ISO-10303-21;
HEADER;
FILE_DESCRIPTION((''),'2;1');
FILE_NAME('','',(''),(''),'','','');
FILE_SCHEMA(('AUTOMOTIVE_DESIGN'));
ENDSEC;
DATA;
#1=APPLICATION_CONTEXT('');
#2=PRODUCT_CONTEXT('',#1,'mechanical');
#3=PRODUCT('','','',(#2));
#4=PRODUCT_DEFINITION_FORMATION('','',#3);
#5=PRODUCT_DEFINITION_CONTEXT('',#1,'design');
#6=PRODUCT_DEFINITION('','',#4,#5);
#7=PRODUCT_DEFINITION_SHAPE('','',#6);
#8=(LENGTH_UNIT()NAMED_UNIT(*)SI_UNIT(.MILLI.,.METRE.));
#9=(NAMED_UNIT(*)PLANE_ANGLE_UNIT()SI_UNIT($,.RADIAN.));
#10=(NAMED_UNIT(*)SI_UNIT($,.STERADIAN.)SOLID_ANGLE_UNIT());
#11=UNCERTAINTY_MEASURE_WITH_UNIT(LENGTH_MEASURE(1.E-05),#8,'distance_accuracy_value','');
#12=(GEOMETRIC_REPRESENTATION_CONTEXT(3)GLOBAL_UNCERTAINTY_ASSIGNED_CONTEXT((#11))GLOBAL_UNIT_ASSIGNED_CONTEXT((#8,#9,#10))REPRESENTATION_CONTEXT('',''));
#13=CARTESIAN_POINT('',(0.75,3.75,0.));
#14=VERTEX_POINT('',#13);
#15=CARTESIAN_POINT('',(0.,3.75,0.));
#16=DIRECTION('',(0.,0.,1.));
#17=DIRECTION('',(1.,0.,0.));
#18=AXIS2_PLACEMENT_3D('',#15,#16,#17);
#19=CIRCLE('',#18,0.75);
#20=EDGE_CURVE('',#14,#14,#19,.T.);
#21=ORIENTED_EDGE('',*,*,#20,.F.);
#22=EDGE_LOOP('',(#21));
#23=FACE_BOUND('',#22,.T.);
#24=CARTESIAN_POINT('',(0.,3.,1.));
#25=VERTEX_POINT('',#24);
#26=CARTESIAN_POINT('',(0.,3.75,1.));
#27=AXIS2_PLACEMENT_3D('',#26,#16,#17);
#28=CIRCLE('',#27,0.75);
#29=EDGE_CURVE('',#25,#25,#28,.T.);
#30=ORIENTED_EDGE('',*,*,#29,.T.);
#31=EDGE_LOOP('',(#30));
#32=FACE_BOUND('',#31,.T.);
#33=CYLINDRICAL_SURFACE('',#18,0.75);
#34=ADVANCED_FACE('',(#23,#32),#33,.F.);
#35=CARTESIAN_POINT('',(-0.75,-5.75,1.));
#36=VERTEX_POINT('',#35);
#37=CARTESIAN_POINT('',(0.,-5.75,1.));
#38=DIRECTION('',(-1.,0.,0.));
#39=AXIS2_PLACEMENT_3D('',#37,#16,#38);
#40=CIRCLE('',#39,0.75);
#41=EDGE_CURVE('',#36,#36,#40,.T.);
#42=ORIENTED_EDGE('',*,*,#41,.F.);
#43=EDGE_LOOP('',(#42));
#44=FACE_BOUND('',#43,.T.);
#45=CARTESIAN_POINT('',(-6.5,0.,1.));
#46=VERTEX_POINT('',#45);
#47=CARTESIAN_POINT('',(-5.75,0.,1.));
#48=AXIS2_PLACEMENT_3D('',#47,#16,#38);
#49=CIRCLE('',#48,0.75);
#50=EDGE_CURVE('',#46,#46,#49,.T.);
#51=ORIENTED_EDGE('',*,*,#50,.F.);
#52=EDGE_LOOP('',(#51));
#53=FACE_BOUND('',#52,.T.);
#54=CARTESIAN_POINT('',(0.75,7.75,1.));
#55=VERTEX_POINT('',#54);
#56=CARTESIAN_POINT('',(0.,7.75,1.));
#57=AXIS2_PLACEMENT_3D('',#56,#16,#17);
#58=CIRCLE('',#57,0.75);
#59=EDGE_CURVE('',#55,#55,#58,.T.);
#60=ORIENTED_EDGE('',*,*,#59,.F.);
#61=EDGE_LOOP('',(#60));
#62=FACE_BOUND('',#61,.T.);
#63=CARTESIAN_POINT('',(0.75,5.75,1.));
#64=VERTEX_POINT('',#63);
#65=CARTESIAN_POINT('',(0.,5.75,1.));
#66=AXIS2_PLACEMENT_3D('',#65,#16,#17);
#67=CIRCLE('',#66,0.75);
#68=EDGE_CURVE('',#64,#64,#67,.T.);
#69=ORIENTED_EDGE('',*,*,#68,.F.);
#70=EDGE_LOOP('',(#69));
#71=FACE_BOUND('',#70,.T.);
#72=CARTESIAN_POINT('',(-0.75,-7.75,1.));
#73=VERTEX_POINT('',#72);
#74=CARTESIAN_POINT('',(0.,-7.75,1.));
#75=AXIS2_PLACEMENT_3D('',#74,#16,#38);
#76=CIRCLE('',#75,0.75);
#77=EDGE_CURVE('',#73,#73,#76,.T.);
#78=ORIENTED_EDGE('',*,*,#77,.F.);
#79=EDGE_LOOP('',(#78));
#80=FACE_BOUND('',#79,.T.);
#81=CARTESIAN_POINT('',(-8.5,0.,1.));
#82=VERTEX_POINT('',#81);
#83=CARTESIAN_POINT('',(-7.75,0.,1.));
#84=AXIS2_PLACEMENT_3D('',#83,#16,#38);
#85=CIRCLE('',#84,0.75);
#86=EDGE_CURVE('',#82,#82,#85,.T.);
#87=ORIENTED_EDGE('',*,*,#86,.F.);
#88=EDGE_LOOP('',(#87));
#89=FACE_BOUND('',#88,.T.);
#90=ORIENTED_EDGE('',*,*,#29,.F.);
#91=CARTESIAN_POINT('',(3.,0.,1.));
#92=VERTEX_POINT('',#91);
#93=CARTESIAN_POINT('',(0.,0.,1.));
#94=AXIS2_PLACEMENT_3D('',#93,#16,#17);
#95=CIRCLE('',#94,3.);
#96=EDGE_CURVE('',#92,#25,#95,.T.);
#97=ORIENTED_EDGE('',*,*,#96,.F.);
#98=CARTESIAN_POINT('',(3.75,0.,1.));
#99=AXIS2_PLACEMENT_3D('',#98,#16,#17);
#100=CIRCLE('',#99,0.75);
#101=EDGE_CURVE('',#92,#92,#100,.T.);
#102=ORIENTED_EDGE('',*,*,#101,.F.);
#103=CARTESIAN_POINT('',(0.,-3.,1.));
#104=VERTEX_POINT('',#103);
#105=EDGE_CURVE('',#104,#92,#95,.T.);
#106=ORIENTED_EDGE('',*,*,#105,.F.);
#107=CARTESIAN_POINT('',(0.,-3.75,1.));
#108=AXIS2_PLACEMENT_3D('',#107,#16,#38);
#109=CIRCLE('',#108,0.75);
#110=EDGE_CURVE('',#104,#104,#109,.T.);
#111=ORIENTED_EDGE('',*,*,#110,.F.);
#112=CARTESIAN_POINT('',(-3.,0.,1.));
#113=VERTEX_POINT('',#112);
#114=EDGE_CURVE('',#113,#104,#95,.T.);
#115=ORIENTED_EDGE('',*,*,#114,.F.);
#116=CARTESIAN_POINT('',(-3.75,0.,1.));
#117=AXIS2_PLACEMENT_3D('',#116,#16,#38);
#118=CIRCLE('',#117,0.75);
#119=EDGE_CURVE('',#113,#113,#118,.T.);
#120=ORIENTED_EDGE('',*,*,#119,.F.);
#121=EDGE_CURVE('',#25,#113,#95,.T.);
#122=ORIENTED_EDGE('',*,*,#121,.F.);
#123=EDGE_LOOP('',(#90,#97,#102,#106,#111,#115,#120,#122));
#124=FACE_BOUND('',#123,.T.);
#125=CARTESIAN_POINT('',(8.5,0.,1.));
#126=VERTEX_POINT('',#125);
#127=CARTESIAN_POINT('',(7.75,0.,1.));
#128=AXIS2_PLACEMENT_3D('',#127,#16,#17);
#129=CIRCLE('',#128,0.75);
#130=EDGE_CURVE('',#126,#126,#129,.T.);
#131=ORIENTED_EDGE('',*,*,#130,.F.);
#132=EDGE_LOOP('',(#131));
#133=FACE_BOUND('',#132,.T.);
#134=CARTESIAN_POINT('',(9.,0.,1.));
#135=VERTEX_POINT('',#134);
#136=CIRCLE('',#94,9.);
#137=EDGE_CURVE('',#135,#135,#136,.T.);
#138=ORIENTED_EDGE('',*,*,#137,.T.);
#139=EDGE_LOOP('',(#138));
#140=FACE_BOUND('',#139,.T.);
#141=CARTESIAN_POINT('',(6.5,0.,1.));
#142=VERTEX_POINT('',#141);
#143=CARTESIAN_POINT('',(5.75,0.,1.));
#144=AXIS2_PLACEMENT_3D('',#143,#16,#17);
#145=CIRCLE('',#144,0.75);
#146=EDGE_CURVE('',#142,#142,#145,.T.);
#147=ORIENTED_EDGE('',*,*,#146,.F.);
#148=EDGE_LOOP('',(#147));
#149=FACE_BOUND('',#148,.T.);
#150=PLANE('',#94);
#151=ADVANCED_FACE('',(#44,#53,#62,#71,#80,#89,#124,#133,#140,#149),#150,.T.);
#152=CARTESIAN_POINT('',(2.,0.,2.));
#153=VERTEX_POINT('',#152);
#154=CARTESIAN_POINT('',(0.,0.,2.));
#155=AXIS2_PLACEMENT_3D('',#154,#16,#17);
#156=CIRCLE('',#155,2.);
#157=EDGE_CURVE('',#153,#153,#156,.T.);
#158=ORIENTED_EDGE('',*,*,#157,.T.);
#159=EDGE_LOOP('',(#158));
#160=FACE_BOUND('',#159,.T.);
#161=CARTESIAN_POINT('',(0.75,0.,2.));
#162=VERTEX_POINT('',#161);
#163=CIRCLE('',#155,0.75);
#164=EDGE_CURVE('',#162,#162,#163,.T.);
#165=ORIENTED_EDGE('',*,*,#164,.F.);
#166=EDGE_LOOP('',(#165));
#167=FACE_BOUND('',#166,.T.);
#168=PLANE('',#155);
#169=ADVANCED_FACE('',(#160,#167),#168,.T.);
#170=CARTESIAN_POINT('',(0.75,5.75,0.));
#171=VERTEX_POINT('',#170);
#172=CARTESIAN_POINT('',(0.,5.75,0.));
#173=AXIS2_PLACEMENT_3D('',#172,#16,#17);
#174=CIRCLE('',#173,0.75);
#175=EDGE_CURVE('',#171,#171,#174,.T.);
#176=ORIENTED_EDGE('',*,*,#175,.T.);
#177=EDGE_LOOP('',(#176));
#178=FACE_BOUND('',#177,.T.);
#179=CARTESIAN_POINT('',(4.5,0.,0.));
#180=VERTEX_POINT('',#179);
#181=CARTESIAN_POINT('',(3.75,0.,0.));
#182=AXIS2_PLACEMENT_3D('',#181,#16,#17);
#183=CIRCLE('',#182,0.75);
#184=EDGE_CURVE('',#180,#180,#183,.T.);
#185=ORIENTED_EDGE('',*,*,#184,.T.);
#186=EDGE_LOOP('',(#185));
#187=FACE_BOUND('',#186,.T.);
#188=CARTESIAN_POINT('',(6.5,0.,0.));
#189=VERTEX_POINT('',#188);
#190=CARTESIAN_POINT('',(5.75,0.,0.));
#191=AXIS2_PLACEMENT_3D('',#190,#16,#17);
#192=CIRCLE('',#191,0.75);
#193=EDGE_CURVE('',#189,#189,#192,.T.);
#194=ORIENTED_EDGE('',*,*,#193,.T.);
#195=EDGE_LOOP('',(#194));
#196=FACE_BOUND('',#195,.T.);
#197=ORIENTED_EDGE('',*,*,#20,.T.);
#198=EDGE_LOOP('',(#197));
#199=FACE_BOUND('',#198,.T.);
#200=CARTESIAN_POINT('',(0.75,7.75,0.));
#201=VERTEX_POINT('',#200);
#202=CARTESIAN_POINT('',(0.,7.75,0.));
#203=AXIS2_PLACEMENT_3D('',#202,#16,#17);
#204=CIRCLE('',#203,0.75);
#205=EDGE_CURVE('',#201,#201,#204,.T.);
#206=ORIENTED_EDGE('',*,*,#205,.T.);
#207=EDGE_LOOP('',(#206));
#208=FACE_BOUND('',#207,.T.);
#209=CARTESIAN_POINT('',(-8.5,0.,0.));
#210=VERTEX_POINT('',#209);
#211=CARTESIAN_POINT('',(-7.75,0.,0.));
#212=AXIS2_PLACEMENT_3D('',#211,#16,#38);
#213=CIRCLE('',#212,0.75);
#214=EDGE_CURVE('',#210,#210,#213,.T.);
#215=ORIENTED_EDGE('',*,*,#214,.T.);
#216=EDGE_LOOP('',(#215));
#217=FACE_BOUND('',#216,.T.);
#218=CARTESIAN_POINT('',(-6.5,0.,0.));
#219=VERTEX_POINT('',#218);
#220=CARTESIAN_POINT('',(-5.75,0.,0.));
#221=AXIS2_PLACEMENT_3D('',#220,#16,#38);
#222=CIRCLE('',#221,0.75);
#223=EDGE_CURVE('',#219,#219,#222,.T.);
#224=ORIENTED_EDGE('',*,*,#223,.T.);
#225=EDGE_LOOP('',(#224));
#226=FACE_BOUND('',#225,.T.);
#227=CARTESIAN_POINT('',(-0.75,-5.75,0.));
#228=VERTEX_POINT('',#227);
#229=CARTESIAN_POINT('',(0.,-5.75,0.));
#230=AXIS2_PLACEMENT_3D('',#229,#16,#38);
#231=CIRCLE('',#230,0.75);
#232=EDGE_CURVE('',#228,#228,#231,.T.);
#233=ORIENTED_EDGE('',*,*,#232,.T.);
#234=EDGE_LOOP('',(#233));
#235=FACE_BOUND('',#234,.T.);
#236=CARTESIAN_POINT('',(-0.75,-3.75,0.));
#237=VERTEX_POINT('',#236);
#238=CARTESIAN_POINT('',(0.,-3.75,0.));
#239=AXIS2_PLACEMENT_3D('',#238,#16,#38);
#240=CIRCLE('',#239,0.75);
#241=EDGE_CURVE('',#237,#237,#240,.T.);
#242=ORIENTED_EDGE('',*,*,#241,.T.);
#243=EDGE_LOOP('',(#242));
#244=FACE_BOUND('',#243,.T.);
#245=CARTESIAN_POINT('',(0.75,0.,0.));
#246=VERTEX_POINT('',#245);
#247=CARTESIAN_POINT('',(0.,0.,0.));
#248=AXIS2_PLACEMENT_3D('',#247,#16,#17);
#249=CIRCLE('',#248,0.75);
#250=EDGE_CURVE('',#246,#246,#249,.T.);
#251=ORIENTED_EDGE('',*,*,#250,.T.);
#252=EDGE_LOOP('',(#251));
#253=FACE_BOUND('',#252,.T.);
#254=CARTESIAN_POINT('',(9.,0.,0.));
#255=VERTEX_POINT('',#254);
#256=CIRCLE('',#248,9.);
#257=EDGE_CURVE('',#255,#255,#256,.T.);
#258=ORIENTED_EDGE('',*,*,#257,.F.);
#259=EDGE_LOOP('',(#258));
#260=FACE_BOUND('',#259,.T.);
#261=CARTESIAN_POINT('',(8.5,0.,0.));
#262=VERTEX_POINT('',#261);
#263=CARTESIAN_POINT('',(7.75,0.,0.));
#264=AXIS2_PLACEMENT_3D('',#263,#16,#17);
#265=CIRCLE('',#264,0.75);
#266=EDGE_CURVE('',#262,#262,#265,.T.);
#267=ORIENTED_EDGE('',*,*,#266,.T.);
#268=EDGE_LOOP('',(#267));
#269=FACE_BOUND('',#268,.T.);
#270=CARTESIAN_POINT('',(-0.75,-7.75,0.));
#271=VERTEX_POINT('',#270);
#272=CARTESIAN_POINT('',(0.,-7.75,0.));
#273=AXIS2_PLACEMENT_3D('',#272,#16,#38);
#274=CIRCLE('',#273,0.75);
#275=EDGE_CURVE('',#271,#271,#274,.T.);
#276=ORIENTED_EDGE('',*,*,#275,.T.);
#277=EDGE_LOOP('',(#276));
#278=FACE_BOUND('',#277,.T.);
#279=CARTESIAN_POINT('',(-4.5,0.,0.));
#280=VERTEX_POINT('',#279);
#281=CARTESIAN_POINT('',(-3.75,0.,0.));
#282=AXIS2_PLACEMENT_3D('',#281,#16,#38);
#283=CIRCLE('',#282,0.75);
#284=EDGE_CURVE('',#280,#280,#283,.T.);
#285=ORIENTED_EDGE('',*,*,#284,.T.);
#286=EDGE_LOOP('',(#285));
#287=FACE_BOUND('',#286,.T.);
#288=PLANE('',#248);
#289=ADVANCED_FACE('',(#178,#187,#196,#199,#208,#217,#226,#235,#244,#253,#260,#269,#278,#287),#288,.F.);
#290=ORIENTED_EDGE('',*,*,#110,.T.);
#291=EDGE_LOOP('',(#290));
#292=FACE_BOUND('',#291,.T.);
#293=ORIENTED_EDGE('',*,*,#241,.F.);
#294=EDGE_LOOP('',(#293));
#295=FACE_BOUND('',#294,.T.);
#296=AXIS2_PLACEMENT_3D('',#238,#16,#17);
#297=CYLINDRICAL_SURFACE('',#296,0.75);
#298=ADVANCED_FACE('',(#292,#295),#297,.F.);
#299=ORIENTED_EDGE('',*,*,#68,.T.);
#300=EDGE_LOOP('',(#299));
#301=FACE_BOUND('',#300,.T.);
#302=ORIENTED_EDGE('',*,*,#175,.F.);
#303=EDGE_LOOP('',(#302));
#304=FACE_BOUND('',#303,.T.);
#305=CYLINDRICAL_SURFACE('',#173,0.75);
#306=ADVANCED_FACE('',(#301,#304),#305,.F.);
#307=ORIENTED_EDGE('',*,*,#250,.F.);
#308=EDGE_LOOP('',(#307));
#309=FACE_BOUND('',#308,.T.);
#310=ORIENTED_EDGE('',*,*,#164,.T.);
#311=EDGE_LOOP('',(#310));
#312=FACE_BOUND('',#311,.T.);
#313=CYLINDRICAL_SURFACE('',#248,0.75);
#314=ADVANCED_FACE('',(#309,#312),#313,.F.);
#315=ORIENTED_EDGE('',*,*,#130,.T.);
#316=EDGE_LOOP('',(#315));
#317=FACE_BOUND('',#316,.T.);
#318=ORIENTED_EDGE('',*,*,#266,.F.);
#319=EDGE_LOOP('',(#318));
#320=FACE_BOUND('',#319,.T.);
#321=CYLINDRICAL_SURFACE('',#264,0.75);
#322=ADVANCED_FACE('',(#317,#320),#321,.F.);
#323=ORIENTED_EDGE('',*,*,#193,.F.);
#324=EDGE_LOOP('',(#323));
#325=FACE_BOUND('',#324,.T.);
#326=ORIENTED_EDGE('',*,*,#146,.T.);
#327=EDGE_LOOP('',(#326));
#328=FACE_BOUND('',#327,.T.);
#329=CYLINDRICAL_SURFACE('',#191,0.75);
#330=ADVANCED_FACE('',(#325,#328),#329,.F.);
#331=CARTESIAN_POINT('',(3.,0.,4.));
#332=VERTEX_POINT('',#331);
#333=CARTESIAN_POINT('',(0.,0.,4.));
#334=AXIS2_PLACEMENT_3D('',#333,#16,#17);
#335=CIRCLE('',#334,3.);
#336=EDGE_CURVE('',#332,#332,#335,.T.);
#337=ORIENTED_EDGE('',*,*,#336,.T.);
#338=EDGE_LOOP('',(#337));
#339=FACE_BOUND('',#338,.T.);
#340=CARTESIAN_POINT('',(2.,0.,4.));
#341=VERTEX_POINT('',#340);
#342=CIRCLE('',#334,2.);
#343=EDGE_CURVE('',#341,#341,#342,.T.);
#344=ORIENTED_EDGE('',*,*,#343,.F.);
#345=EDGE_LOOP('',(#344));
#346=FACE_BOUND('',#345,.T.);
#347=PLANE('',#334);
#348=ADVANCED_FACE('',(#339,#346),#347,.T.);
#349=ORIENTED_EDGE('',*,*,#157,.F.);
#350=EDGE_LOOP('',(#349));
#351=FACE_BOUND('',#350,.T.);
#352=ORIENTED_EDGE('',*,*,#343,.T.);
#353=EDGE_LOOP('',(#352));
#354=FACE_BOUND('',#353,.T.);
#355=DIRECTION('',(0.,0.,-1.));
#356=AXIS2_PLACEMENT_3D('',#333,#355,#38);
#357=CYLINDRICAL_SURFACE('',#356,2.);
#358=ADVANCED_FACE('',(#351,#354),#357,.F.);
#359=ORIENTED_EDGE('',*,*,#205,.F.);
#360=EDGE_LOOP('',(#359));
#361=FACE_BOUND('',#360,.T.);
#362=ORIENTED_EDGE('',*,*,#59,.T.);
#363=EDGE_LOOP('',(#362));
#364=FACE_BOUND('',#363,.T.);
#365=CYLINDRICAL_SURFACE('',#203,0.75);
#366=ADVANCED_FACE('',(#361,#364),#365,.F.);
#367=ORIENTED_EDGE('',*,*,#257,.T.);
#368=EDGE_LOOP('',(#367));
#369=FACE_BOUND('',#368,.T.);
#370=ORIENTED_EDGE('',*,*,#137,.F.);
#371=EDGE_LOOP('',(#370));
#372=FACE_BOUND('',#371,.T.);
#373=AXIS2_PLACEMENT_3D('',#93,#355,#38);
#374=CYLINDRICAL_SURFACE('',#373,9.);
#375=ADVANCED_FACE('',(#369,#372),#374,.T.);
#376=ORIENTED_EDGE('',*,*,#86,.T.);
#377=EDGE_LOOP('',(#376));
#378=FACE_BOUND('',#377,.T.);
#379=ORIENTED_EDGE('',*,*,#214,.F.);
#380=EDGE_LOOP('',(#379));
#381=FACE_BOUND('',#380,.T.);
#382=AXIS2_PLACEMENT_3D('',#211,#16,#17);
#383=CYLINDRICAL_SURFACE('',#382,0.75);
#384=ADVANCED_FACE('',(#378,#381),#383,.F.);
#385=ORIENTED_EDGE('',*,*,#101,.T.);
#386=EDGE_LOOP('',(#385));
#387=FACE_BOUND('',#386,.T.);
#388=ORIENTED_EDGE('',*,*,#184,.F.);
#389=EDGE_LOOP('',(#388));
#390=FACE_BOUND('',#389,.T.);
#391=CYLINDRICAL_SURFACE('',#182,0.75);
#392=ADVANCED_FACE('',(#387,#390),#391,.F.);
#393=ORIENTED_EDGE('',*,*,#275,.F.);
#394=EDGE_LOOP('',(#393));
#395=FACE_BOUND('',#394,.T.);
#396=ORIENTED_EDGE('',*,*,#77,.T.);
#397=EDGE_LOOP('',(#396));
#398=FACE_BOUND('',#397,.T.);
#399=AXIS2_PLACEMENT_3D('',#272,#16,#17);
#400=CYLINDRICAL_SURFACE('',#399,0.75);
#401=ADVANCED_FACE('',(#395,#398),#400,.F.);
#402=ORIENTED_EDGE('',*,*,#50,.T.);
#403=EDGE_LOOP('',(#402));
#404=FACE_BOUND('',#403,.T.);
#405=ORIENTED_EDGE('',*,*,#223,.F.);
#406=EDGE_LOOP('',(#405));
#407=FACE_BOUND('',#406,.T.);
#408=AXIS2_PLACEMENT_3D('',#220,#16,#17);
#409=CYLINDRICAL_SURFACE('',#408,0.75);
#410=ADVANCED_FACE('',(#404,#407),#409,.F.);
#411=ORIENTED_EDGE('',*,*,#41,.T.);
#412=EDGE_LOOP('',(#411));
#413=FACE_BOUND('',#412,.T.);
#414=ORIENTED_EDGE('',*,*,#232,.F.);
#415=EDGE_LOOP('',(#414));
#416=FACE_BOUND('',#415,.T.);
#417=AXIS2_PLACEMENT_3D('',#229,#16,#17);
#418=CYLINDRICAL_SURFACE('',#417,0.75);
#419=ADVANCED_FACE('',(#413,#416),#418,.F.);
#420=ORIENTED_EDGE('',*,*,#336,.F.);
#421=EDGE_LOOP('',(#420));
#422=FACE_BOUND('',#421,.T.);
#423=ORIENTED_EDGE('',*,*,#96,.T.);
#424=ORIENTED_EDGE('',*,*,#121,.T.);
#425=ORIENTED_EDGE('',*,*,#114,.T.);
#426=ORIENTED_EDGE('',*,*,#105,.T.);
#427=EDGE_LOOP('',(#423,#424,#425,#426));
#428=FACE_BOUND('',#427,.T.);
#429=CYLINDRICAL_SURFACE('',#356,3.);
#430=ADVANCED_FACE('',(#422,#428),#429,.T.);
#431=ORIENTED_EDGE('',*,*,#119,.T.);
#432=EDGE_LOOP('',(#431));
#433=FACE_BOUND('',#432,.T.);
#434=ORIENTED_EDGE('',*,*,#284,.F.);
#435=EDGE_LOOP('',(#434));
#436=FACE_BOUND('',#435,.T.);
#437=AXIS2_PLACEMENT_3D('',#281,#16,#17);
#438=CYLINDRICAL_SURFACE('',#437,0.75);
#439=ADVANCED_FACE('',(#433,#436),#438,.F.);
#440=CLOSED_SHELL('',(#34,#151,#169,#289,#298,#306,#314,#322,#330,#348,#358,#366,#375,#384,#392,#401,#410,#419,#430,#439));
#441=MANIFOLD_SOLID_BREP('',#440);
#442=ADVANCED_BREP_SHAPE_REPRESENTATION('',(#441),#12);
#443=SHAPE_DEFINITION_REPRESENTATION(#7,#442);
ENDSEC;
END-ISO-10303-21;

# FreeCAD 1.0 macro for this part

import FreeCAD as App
import Part
import Sketcher
Q = App.Units.Quantity

doc = App.newDocument("Part")
params = doc.addObject("Spreadsheet::Sheet", "Params")
for row, (alias, value) in enumerate([
    ("sketch1_diameter", "18 mm"),
    ("sketch1_diameter2", "6 mm"),
    ("pad1_length", "1 mm"),
    ("sketch2_diameter", "6 mm"),
    ("sketch2_diameter2", "4 mm"),
    ("pad2_length", "4 mm"),
    ("sketch3_diameter", "4 mm"),
    ("pad3_length", "2 mm"),
    ("sketch4_diameter", "1.5 mm"),
    ("pocket1_length", "2 mm"),
    ("sketch5_diameter", "1.5 mm"),
], start=1):
    params.set(f"A{row}", alias)
    params.set(f"B{row}", "=" + value)
    params.setAlias(f"B{row}", alias)

body = doc.addObject("PartDesign::Body", "Body")

sketch1 = doc.addObject("Sketcher::SketchObject", "Sketch")
body.addObject(sketch1)
sketch1.AttachmentSupport = (doc.XY_Plane, [""])
sketch1.MapMode = "FlatFace"
sketch1.addGeometry([
    Part.Circle(App.Vector(0, 0, 0), App.Vector(0, 0, 1), 9),
    Part.Circle(App.Vector(0, 0, 0), App.Vector(0, 0, 1), 3),
], False)
sketch1.addConstraint([
    Sketcher.Constraint("Coincident", 0, 3, -1, 1),
    Sketcher.Constraint("Coincident", 1, 3, -1, 1),
    Sketcher.Constraint("Diameter", 0, Q("18 mm")),
    Sketcher.Constraint("Diameter", 1, Q("6 mm")),
])
sketch1.setExpression("Constraints[2]", "Params.sketch1_diameter")
sketch1.setExpression("Constraints[3]", "Params.sketch1_diameter2")
pad1 = doc.addObject("PartDesign::Pad", "Pad")
body.addObject(pad1)
pad1.Profile = sketch1
pad1.setExpression("Length", "Params.pad1_length")

sketch2 = doc.addObject("Sketcher::SketchObject", "Sketch001")
body.addObject(sketch2)
sketch2.AttachmentSupport = (doc.XY_Plane, [""])
sketch2.MapMode = "FlatFace"
sketch2.addGeometry([
    Part.Circle(App.Vector(0, 0, 0), App.Vector(0, 0, 1), 3),
    Part.Circle(App.Vector(0, 0, 0), App.Vector(0, 0, 1), 2),
], False)
sketch2.addConstraint([
    Sketcher.Constraint("Coincident", 0, 3, -1, 1),
    Sketcher.Constraint("Coincident", 1, 3, -1, 1),
    Sketcher.Constraint("Diameter", 0, Q("6 mm")),
    Sketcher.Constraint("Diameter", 1, Q("4 mm")),
])
sketch2.setExpression("Constraints[2]", "Params.sketch2_diameter")
sketch2.setExpression("Constraints[3]", "Params.sketch2_diameter2")
pad2 = doc.addObject("PartDesign::Pad", "Pad001")
body.addObject(pad2)
pad2.Profile = sketch2
pad2.setExpression("Length", "Params.pad2_length")

sketch3 = doc.addObject("Sketcher::SketchObject", "Sketch002")
body.addObject(sketch3)
sketch3.AttachmentSupport = (doc.XY_Plane, [""])
sketch3.MapMode = "FlatFace"
sketch3.addGeometry(Part.Circle(App.Vector(0, 0, 0), App.Vector(0, 0, 1), 2), False)
sketch3.addConstraint([
    Sketcher.Constraint("Coincident", 0, 3, -1, 1),
    Sketcher.Constraint("Diameter", 0, Q("4 mm")),
])
sketch3.setExpression("Constraints[1]", "Params.sketch3_diameter")
pad3 = doc.addObject("PartDesign::Pad", "Pad002")
body.addObject(pad3)
pad3.Profile = sketch3
pad3.setExpression("Length", "Params.pad3_length")

sketch4 = doc.addObject("Sketcher::SketchObject", "Sketch003")
body.addObject(sketch4)
sketch4.AttachmentSupport = (doc.XY_Plane, [""])
sketch4.MapMode = "FlatFace"
sketch4.AttachmentOffset = App.Placement(App.Vector(0, 0, 2), App.Rotation())
sketch4.addGeometry(Part.Circle(App.Vector(0, 0, 0), App.Vector(0, 0, 1), 0.8), False)
sketch4.addConstraint([
    Sketcher.Constraint("Coincident", 0, 3, -1, 1),
    Sketcher.Constraint("Diameter", 0, Q("1.5 mm")),
])
sketch4.setExpression("Constraints[1]", "Params.sketch4_diameter")
pocket1 = doc.addObject("PartDesign::Pocket", "Pocket")
body.addObject(pocket1)
pocket1.Profile = sketch4
pocket1.setExpression("Length", "Params.pocket1_length")

sketch5 = doc.addObject("Sketcher::SketchObject", "Sketch004")
body.addObject(sketch5)
sketch5.AttachmentSupport = (doc.XY_Plane, [""])
sketch5.MapMode = "FlatFace"
sketch5.AttachmentOffset = App.Placement(App.Vector(0, 0, 1), App.Rotation())
sketch5.addGeometry([
    Part.Circle(App.Vector(3.8, 0, 0), App.Vector(0, 0, 1), 0.8),
    Part.Circle(App.Vector(5.8, 0, 0), App.Vector(0, 0, 1), 0.8),
    Part.Circle(App.Vector(7.8, 0, 0), App.Vector(0, 0, 1), 0.8),
    Part.Circle(App.Vector(-3.8, 0, 0), App.Vector(0, 0, 1), 0.8),
    Part.Circle(App.Vector(-5.8, 0, 0), App.Vector(0, 0, 1), 0.8),
    Part.Circle(App.Vector(-7.8, 0, 0), App.Vector(0, 0, 1), 0.8),
    Part.Circle(App.Vector(0, 3.8, 0), App.Vector(0, 0, 1), 0.8),
    Part.Circle(App.Vector(0, 5.8, 0), App.Vector(0, 0, 1), 0.8),
    Part.Circle(App.Vector(0, 7.8, 0), App.Vector(0, 0, 1), 0.8),
    Part.Circle(App.Vector(0, -3.8, 0), App.Vector(0, 0, 1), 0.8),
    Part.Circle(App.Vector(0, -5.8, 0), App.Vector(0, 0, 1), 0.8),
    Part.Circle(App.Vector(0, -7.8, 0), App.Vector(0, 0, 1), 0.8),
], False)
sketch5.addConstraint([
    Sketcher.Constraint("Equal", 0, 1),
    Sketcher.Constraint("Equal", 1, 2),
    Sketcher.Constraint("Equal", 2, 3),
    Sketcher.Constraint("Equal", 3, 4),
    Sketcher.Constraint("Equal", 4, 5),
    Sketcher.Constraint("Equal", 5, 6),
    Sketcher.Constraint("Equal", 6, 7),
    Sketcher.Constraint("Equal", 7, 8),
    Sketcher.Constraint("Equal", 8, 9),
    Sketcher.Constraint("Equal", 9, 10),
    Sketcher.Constraint("Equal", 10, 11),
    Sketcher.Constraint("Symmetric", 0, 3, 3, 3, -1, 1),
    Sketcher.Constraint("Symmetric", 1, 3, 4, 3, -1, 1),
    Sketcher.Constraint("Symmetric", 2, 3, 5, 3, -1, 1),
    Sketcher.Constraint("Symmetric", 6, 3, 9, 3, -1, 1),
    Sketcher.Constraint("Symmetric", 7, 3, 10, 3, -1, 1),
    Sketcher.Constraint("Symmetric", 8, 3, 11, 3, -1, 1),
    Sketcher.Constraint("PointOnObject", 0, 3, -1),
    Sketcher.Constraint("PointOnObject", 1, 3, -1),
    Sketcher.Constraint("PointOnObject", 2, 3, -1),
    Sketcher.Constraint("PointOnObject", 6, 3, -2),
    Sketcher.Constraint("PointOnObject", 7, 3, -2),
    Sketcher.Constraint("PointOnObject", 8, 3, -2),
    Sketcher.Constraint("Diameter", 0, Q("1.5 mm")),
    Sketcher.Constraint("DistanceX", 0, 3, 1, 3, Q("2 mm")),
    Sketcher.Constraint("DistanceX", 1, 3, 2, 3, Q("2 mm")),
    Sketcher.Constraint("DistanceY", 6, 3, 7, 3, Q("2 mm")),
    Sketcher.Constraint("DistanceY", 7, 3, 8, 3, Q("2 mm")),
    Sketcher.Constraint("DistanceX", 3, 3, 0, 3, Q("7.5 mm")),
    Sketcher.Constraint("DistanceY", 9, 3, 6, 3, Q("7.5 mm")),
])
sketch5.setExpression("Constraints[23]", "Params.sketch5_diameter")
pocket2 = doc.addObject("PartDesign::Pocket", "Pocket001")
body.addObject(pocket2)
pocket2.Profile = sketch5
pocket2.Type = "ThroughAll"

doc.recompute()
